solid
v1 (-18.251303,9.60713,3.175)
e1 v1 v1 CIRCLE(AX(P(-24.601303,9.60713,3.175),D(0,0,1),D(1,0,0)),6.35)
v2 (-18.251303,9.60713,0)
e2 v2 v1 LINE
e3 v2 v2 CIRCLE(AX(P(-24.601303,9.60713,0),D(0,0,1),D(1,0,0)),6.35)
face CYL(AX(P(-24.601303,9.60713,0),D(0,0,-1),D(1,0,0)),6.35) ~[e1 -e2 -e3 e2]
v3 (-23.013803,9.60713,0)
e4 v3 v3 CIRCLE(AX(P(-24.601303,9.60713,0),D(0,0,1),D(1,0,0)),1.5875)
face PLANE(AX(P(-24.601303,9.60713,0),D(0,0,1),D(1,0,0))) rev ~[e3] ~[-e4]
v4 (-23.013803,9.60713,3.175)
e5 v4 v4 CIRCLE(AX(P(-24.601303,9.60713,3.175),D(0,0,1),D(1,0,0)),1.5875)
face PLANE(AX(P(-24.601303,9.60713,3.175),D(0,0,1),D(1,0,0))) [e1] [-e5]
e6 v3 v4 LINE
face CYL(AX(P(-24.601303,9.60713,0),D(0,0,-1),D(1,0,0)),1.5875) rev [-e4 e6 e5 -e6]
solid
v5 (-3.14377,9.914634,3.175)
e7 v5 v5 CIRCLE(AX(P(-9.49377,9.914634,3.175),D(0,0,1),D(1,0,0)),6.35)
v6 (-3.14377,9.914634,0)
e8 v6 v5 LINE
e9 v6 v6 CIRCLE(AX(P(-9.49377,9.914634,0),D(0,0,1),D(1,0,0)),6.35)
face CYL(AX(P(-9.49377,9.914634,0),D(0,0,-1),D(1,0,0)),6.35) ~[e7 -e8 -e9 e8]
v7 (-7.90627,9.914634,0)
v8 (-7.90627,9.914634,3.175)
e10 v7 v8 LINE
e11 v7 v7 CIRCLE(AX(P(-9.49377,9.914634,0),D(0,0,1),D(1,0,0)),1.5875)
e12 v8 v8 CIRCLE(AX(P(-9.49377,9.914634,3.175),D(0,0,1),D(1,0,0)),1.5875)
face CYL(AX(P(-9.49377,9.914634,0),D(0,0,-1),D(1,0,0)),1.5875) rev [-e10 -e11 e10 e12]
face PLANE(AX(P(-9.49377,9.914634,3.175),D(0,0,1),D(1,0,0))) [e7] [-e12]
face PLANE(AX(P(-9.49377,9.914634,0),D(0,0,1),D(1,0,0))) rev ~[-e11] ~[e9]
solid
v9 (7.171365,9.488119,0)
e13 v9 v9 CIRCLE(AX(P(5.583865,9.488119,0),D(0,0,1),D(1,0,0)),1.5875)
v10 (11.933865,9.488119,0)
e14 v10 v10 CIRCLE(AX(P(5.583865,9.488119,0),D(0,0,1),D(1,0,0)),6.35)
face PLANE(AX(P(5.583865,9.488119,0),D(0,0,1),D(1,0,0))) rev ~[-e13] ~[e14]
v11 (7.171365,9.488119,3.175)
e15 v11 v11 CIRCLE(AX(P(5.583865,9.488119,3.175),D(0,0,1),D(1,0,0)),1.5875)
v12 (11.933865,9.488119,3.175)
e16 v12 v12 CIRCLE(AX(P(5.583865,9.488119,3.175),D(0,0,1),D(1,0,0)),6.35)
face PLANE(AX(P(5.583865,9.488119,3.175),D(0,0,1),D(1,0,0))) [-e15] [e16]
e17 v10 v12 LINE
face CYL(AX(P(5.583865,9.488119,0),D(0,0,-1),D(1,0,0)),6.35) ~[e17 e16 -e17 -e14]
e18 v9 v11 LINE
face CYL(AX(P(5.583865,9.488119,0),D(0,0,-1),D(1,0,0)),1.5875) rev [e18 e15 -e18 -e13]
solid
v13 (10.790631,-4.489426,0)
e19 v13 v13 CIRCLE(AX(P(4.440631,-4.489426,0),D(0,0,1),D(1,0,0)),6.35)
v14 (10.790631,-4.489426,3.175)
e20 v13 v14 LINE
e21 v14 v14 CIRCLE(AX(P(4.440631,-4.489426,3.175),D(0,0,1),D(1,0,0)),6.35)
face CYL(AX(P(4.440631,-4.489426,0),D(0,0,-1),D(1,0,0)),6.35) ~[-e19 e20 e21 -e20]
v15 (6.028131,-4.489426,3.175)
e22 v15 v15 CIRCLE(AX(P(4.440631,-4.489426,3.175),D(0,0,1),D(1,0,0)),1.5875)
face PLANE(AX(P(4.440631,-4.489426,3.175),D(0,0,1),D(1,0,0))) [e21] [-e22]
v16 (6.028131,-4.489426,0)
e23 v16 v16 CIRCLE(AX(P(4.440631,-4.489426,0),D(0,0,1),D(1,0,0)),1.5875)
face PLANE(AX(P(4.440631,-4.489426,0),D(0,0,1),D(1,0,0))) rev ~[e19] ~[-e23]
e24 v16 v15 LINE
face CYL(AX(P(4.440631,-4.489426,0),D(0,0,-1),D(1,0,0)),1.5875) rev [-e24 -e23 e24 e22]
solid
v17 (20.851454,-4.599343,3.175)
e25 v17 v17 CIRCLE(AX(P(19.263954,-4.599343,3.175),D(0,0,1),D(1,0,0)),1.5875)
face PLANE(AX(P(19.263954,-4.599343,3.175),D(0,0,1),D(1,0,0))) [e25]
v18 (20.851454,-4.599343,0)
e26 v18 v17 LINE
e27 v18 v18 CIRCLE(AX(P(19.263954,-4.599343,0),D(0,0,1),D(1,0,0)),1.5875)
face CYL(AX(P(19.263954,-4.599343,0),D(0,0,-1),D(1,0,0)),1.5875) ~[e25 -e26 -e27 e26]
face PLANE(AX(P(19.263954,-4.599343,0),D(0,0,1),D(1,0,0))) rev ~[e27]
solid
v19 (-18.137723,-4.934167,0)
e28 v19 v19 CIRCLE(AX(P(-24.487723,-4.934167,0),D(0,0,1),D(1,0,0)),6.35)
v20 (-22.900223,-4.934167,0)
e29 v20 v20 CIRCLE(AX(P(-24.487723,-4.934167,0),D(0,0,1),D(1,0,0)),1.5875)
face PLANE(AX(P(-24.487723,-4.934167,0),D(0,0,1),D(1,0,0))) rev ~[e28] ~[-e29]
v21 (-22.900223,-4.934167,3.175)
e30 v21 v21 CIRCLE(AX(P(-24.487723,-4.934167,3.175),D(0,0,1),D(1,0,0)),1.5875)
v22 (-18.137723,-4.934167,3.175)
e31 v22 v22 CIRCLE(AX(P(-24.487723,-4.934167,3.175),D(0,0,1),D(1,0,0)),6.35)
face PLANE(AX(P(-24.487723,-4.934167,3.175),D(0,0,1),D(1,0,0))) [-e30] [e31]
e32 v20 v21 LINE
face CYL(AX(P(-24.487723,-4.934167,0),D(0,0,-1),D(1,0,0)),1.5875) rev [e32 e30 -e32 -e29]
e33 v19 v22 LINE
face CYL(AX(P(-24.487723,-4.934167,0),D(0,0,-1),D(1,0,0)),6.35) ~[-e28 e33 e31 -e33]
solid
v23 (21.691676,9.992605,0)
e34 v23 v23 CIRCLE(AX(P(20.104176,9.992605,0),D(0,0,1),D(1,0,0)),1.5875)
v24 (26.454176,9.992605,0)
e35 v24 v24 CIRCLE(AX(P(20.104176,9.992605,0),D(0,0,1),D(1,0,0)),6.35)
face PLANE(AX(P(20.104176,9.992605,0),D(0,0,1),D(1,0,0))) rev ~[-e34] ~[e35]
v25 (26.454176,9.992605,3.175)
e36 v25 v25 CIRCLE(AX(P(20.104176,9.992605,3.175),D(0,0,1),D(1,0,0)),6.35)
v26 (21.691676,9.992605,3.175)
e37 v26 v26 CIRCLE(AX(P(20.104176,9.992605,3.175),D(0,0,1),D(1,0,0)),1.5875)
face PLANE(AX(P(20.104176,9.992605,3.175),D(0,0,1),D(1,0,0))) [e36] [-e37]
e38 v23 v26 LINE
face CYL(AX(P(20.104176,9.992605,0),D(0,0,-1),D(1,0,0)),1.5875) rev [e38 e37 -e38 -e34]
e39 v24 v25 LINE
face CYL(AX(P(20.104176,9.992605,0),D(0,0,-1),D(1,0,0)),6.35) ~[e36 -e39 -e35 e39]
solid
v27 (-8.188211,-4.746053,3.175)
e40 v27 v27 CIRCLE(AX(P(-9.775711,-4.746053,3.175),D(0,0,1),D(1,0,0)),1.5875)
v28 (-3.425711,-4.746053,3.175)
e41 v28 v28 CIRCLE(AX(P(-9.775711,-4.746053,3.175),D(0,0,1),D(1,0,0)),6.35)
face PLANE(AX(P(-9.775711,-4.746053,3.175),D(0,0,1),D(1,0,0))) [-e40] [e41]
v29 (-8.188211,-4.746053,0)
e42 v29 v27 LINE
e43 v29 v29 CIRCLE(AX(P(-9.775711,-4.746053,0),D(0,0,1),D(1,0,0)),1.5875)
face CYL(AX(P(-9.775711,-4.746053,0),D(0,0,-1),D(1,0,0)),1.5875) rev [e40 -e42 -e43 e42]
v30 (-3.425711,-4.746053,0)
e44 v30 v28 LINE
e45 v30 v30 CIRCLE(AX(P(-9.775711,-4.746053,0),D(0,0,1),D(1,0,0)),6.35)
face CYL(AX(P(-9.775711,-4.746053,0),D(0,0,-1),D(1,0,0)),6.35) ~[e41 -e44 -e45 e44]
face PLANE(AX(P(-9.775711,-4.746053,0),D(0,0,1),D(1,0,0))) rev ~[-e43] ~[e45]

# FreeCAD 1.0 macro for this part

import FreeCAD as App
import Part
import Sketcher

V = App.Vector
Q = App.Units.Quantity

doc = App.newDocument("Part")
body = doc.addObject("PartDesign::Body", "Body")
body.AllowCompound = True

# Sketch on XY plane
sketch1 = body.newObject("Sketcher::SketchObject", "Sketch")
sketch1.AttachmentSupport = (doc.getObject("XY_Plane"), [""])
sketch1.MapMode = "FlatFace"
sketch1.addGeometry([
    Part.Circle(V(-24.6, 9.6, 0), V(0, 0, 1), 6.3),  # 0
    Part.Circle(V(-24.6, 9.6, 0), V(0, 0, 1), 1.6),  # 1
    Part.Circle(V(-9.5, 9.9, 0), V(0, 0, 1), 6.3),  # 2
    Part.Circle(V(-9.5, 9.9, 0), V(0, 0, 1), 1.6),  # 3
    Part.Circle(V(5.6, 9.5, 0), V(0, 0, 1), 6.3),  # 4
    Part.Circle(V(5.6, 9.5, 0), V(0, 0, 1), 1.6),  # 5
    Part.Circle(V(20.1, 10, 0), V(0, 0, 1), 6.3),  # 6
    Part.Circle(V(20.1, 10, 0), V(0, 0, 1), 1.6),  # 7
    Part.Circle(V(-24.5, -4.9, 0), V(0, 0, 1), 6.3),  # 8
    Part.Circle(V(-24.5, -4.9, 0), V(0, 0, 1), 1.6),  # 9
    Part.Circle(V(4.4, -4.5, 0), V(0, 0, 1), 6.3),  # 10
    Part.Circle(V(4.4, -4.5, 0), V(0, 0, 1), 1.6),  # 11
    Part.Circle(V(-9.8, -4.7, 0), V(0, 0, 1), 6.3),  # 12
    Part.Circle(V(-9.8, -4.7, 0), V(0, 0, 1), 1.6),  # 13
    Part.Circle(V(19.3, -4.6, 0), V(0, 0, 1), 1.6),  # 14
], False)
sketch1.addConstraint([
    Sketcher.Constraint("Coincident", 1, 3, 0, 3),
    Sketcher.Constraint("Coincident", 3, 3, 2, 3),
    Sketcher.Constraint("Coincident", 5, 3, 4, 3),
    Sketcher.Constraint("Coincident", 7, 3, 6, 3),
    Sketcher.Constraint("Coincident", 9, 3, 8, 3),
    Sketcher.Constraint("Coincident", 11, 3, 10, 3),
    Sketcher.Constraint("Coincident", 13, 3, 12, 3),
    Sketcher.Constraint("Equal", 0, 2),
    Sketcher.Constraint("Equal", 1, 3),
    Sketcher.Constraint("Equal", 2, 4),
    Sketcher.Constraint("Equal", 3, 5),
    Sketcher.Constraint("Equal", 4, 6),
    Sketcher.Constraint("Equal", 5, 7),
    Sketcher.Constraint("Equal", 6, 8),
    Sketcher.Constraint("Equal", 7, 9),
    Sketcher.Constraint("Equal", 8, 10),
    Sketcher.Constraint("Equal", 9, 11),
    Sketcher.Constraint("Equal", 10, 12),
    Sketcher.Constraint("Equal", 11, 13),
    Sketcher.Constraint("Equal", 13, 14),
    Sketcher.Constraint("Diameter", 0, Q("0.5 in")),
    Sketcher.Constraint("Diameter", 1, Q("0.125 in")),
    Sketcher.Constraint("DistanceX", 12, 3, 2, 3, Q("0.0111 in")),
    Sketcher.Constraint("DistanceY", 8, 3, 2, 3, 14.848801),
    Sketcher.Constraint("DistanceX", 2, 3, 10, 3, 13.934401),
    Sketcher.Constraint("DistanceY", -1, 1, 0, 3, 9.60713),
    Sketcher.Constraint("DistanceX", 2, 3, -1, 1, 9.49377),
    Sketcher.Constraint("DistanceY", -1, 1, 4, 3, 9.488119),
    Sketcher.Constraint("DistanceX", 0, 3, 4, 3, 30.185168),
    Sketcher.Constraint("DistanceX", 4, 3, 6, 3, 14.520311),
    Sketcher.Constraint("DistanceY", 2, 3, 6, 3, 0.077971),
    Sketcher.Constraint("DistanceX", 0, 3, 8, 3, 0.11358),
    Sketcher.Constraint("DistanceY", 10, 3, 2, 3, 14.40406),
    Sketcher.Constraint("DistanceX", 4, 3, 14, 3, 13.680089),
    Sketcher.Constraint("DistanceY", 14, 3, 4, 3, 14.087462),
    Sketcher.Constraint("DistanceX", 0, 3, -1, 1, 24.601303),
    Sketcher.Constraint("DistanceY", -1, 1, 2, 3, 9.914634),
    Sketcher.Constraint("DistanceY", 12, 3, -1, 1, 4.746053),
])
pad1 = body.newObject("PartDesign::Pad", "Pad")
pad1.Profile = sketch1
pad1.Length = Q("0.125 in")

doc.recompute()
